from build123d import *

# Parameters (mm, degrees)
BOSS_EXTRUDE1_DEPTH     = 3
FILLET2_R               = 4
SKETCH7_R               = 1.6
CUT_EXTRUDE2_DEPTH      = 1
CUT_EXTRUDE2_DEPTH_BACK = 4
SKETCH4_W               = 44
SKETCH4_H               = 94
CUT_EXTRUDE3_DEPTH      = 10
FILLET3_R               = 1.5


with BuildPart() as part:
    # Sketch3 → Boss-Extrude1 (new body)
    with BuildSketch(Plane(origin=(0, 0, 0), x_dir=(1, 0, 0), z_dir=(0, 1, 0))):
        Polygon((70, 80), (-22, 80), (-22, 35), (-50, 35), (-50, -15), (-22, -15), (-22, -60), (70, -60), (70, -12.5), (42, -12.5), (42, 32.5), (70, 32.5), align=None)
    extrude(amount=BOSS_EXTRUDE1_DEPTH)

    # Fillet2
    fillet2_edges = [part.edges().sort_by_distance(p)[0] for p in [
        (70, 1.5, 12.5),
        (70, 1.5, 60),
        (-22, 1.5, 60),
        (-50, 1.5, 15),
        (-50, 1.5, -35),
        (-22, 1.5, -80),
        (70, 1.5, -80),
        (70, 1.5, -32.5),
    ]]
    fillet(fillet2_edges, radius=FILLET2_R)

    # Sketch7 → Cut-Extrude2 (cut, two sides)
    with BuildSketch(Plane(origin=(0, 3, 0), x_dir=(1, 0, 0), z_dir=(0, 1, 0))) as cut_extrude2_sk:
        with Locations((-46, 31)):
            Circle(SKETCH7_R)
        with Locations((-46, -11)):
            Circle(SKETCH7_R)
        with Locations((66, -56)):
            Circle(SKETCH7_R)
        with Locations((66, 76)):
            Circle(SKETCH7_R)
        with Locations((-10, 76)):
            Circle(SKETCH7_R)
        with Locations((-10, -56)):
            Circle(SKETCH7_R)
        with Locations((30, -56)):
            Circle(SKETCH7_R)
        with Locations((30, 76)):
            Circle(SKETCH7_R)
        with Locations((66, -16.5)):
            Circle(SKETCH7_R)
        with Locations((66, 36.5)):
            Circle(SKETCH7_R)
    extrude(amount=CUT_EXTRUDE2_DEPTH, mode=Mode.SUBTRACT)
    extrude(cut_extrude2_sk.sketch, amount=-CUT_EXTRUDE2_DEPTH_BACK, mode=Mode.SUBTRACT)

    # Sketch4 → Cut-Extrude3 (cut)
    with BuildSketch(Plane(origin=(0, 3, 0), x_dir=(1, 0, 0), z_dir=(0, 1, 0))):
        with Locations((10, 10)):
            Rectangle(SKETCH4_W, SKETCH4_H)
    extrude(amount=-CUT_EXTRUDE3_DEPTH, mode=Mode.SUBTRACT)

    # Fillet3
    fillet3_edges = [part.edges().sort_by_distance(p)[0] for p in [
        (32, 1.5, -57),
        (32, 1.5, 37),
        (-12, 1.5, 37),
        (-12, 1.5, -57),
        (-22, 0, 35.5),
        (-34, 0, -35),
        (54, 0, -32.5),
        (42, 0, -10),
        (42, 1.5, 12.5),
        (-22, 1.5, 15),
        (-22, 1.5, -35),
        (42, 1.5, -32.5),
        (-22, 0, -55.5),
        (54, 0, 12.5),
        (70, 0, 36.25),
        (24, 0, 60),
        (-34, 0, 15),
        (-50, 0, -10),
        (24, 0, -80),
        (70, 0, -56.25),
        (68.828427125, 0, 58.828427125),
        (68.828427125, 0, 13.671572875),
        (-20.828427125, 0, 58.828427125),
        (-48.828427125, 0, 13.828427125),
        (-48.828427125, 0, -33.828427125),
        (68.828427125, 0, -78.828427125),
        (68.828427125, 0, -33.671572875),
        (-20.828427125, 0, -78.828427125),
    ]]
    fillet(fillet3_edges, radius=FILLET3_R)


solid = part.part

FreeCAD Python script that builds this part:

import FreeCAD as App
import Part
import Sketcher
from FreeCAD import Vector


def edges_at(feature, points):
    """Names of the edges that pass closest to the given points."""
    edges = feature.Shape.Edges
    near = lambda p: min(range(len(edges)), key=lambda i: edges[i].distToShape(Part.Vertex(*p))[0])
    return sorted({f"Edge{near(p) + 1}" for p in points})


def add_polygon(sketch, points):
    """Adds a closed chain of lines whose ends are joined by coincident constraints."""
    first, n = sketch.GeometryCount, len(points)
    for a, b in zip(points, points[1:] + points[:1]):
        sketch.addGeometry(Part.LineSegment(App.Vector(*a, 0), App.Vector(*b, 0)), False)
    for i in range(n):
        sketch.addConstraint(Sketcher.Constraint("Coincident", first + i, 2, first + (i + 1) % n, 1))

doc = App.newDocument("Part")
body = doc.addObject("PartDesign::Body", "Body")

# Sketch on XZ plane
sketch1 = body.newObject("Sketcher::SketchObject", "Sketch")
sketch1.AttachmentSupport = (doc.getObject("XZ_Plane"), [""])
sketch1.MapMode = "FlatFace"
add_polygon(sketch1, [(70, -80), (-22, -80), (-22, -35), (-50, -35), (-50, 15), (-22, 15), (-22, 60), (70, 60), (70, 12), (42, 12), (42, -32), (70, -32)])  # lines 0-11
sketch1.addConstraint([
    Sketcher.Constraint("Horizontal", 0),
    Sketcher.Constraint("Vertical", 1),
    Sketcher.Constraint("Horizontal", 2),
    Sketcher.Constraint("Vertical", 3),
    Sketcher.Constraint("Horizontal", 4),
    Sketcher.Constraint("Vertical", 5),
    Sketcher.Constraint("Horizontal", 6),
    Sketcher.Constraint("Vertical", 7),
    Sketcher.Constraint("Horizontal", 8),
    Sketcher.Constraint("Vertical", 9),
    Sketcher.Constraint("Horizontal", 10),
    Sketcher.Constraint("Vertical", 11),
    Sketcher.Constraint("Vertical", 1, 2, 4, 2),
    Sketcher.Constraint("Vertical", 7, 2, 10, 2),
    Sketcher.Constraint("Equal", 4, 8),
    Sketcher.Constraint("Equal", 1, 5),
    Sketcher.Constraint("Equal", 5, 9),
    Sketcher.Constraint("Equal", 7, 11),
    Sketcher.Constraint("DistanceX", 0, 2, 0, 1, 92.0),
    Sketcher.Constraint("DistanceX", 2, 2, 2, 1, 28.0),
    Sketcher.Constraint("DistanceY", 1, 1, 1, 2, 45.0),
    Sketcher.Constraint("DistanceY", 3, 1, 3, 2, 50.0),
    Sketcher.Constraint("DistanceX", 0, 2, -1, 1, 22.0),
    Sketcher.Constraint("DistanceY", 0, 2, -1, 1, 80.0),
])
pad1 = body.newObject("PartDesign::Pad", "Pad")
pad1.Profile = sketch1
pad1.Length = 3
pad1.Reversed = True
doc.recompute()

fillet = body.newObject("PartDesign::Fillet", "Fillet")
fillet.Base = (pad1, edges_at(pad1, [
    (70, 1.5, 12.5),
    (70, 1.5, 60),
    (-22, 1.5, 60),
    (-50, 1.5, 15),
    (-50, 1.5, -35),
    (-22, 1.5, -80),
    (70, 1.5, -80),
    (70, 1.5, -32.5),
]))
fillet.Radius = 4

# Sketch on XZ plane
sketch2 = body.newObject("Sketcher::SketchObject", "Sketch001")
sketch2.AttachmentSupport = (doc.getObject("XZ_Plane"), [""])
sketch2.MapMode = "FlatFace"
sketch2.AttachmentOffset = App.Placement(Vector(0, 0, -3), App.Rotation())
sketch2.addGeometry([
    Part.Circle(Vector(-46, -31, 0), Vector(0, 0, 1), 1.6),  # 0
    Part.Circle(Vector(-46, 11, 0), Vector(0, 0, 1), 1.6),  # 1
    Part.Circle(Vector(66, 56, 0), Vector(0, 0, 1), 1.6),  # 2
    Part.Circle(Vector(66, -76, 0), Vector(0, 0, 1), 1.6),  # 3
    Part.Circle(Vector(-10, -76, 0), Vector(0, 0, 1), 1.6),  # 4
    Part.Circle(Vector(-10, 56, 0), Vector(0, 0, 1), 1.6),  # 5
    Part.Circle(Vector(30, 56, 0), Vector(0, 0, 1), 1.6),  # 6
    Part.Circle(Vector(30, -76, 0), Vector(0, 0, 1), 1.6),  # 7
    Part.Circle(Vector(66, 16.5, 0), Vector(0, 0, 1), 1.6),  # 8
    Part.Circle(Vector(66, -36.5, 0), Vector(0, 0, 1), 1.6),  # 9
], False)
sketch2.addConstraint([
    Sketcher.Constraint("Equal", 0, 1),
    Sketcher.Constraint("Equal", 1, 2),
    Sketcher.Constraint("Equal", 2, 3),
    Sketcher.Constraint("Equal", 3, 4),
    Sketcher.Constraint("Equal", 4, 5),
    Sketcher.Constraint("Equal", 5, 6),
    Sketcher.Constraint("Equal", 6, 7),
    Sketcher.Constraint("Equal", 7, 8),
    Sketcher.Constraint("Equal", 8, 9),
    Sketcher.Constraint("Horizontal", 3, 3, 4, 3),
    Sketcher.Constraint("Horizontal", 2, 3, 5, 3),
    Sketcher.Constraint("Horizontal", 5, 3, 6, 3),
    Sketcher.Constraint("Horizontal", 4, 3, 7, 3),
    Sketcher.Constraint("Vertical", 0, 3, 1, 3),
    Sketcher.Constraint("Vertical", 2, 3, 3, 3),
    Sketcher.Constraint("Vertical", 4, 3, 5, 3),
    Sketcher.Constraint("Vertical", 6, 3, 7, 3),
    Sketcher.Constraint("Vertical", 3, 3, 8, 3),
    Sketcher.Constraint("Vertical", 8, 3, 9, 3),
    Sketcher.Constraint("Diameter", 0, 3.2),
    Sketcher.Constraint("DistanceX", 0, 3, -1, 1, 46.0),
    Sketcher.Constraint("DistanceY", 0, 3, -1, 1, 31.0),
    Sketcher.Constraint("DistanceY", -1, 1, 1, 3, 11.0),
    Sketcher.Constraint("DistanceX", -1, 1, 2, 3, 66.0),
    Sketcher.Constraint("DistanceY", -1, 1, 2, 3, 56.0),
    Sketcher.Constraint("DistanceY", 3, 3, -1, 1, 76.0),
    Sketcher.Constraint("DistanceX", 4, 3, -1, 1, 10.0),
    Sketcher.Constraint("DistanceX", -1, 1, 6, 3, 30.0),
    Sketcher.Constraint("DistanceY", 9, 3, 8, 3, 53.0),
    Sketcher.Constraint("DistanceY", -1, 1, 8, 3, 16.5),
])
pocket1 = body.newObject("PartDesign::Pocket", "Pocket")
pocket1.Profile = sketch2
pocket1.Type = "ThroughAll"
pocket1.Midplane = True

# Sketch on XZ plane
sketch3 = body.newObject("Sketcher::SketchObject", "Sketch002")
sketch3.AttachmentSupport = (doc.getObject("XZ_Plane"), [""])
sketch3.MapMode = "FlatFace"
sketch3.AttachmentOffset = App.Placement(Vector(0, 0, -3), App.Rotation())
add_polygon(sketch3, [(-12, -57), (-12, 37), (32, 37), (32, -57)])  # lines 0-3
sketch3.addConstraint([
    Sketcher.Constraint("Vertical", 0),
    Sketcher.Constraint("Horizontal", 1),
    Sketcher.Constraint("Vertical", 2),
    Sketcher.Constraint("Horizontal", 3),
    Sketcher.Constraint("DistanceX", 1, 1, 1, 2, 44.0),
    Sketcher.Constraint("DistanceY", 0, 1, 0, 2, 94.0),
    Sketcher.Constraint("DistanceX", 0, 2, -1, 1, 12.0),
    Sketcher.Constraint("DistanceY", -1, 1, 0, 2, 37.0),
])
pocket2 = body.newObject("PartDesign::Pocket", "Pocket001")
pocket2.Profile = sketch3
pocket2.Length = 10
pocket2.Reversed = True
doc.recompute()

fillet2 = body.newObject("PartDesign::Fillet", "Fillet001")
fillet2.Base = (pocket2, edges_at(pocket2, [
    (32, 1.5, -57),
    (32, 1.5, 37),
    (-12, 1.5, 37),
    (-12, 1.5, -57),
    (-22, 0, 35.5),
    (-34, 0, -35),
    (54, 0, -32.5),
    (42, 0, -10),
    (42, 1.5, 12.5),
    (-22, 1.5, 15),
    (-22, 1.5, -35),
    (42, 1.5, -32.5),
    (-22, 0, -55.5),
    (54, 0, 12.5),
    (70, 0, 36.25),
    (24, 0, 60),
    (-34, 0, 15),
    (-50, 0, -10),
    (24, 0, -80),
    (70, 0, -56.25),
    (68.828, 0, 58.828),
    (68.828, 0, 13.672),
    (-20.828, 0, 58.828),
    (-48.828, 0, 13.828),
    (-48.828, 0, -33.828),
    (68.828, 0, -78.828),
    (68.828, 0, -33.672),
    (-20.828, 0, -78.828),
]))
fillet2.Radius = 1.5

doc.recompute()
